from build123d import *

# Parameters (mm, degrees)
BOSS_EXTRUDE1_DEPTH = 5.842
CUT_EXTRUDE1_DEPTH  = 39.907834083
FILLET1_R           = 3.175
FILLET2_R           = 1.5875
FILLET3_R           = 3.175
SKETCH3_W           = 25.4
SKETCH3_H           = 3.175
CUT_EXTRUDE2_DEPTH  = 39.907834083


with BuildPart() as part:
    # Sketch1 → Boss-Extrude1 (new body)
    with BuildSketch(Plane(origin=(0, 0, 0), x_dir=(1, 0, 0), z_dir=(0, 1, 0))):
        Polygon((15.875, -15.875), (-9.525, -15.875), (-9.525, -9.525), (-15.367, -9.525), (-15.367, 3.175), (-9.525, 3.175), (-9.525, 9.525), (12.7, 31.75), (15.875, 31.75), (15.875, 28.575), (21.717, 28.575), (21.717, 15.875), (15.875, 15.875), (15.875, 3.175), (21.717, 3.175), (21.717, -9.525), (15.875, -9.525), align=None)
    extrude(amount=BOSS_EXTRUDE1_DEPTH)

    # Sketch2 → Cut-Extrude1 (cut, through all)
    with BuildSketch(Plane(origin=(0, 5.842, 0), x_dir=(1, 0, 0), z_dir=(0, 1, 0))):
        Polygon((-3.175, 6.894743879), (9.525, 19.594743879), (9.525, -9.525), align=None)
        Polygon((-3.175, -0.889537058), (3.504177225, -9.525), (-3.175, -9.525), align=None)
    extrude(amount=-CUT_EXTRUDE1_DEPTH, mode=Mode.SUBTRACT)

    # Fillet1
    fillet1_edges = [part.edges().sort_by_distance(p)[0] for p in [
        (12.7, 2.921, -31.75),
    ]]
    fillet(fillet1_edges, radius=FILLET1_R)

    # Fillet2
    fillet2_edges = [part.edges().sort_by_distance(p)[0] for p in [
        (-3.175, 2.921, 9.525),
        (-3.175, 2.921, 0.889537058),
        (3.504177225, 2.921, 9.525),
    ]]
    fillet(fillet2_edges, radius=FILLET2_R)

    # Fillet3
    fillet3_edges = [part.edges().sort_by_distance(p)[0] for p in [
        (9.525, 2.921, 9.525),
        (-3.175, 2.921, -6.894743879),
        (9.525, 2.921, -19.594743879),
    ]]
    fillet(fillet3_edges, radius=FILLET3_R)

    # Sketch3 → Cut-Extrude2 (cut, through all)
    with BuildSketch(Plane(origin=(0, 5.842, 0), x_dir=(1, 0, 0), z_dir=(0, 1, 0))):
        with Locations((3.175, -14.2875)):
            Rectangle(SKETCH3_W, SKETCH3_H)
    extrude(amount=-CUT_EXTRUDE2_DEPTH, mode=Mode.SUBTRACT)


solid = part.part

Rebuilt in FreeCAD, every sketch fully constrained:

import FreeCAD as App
import Part
import Sketcher

V = App.Vector
Q = App.Units.Quantity


def edges_at(feature, points):
    """Names of the edges that pass closest to the given points."""
    edges = feature.Shape.Edges
    near = lambda p: min(range(len(edges)), key=lambda i: edges[i].distToShape(Part.Vertex(*p))[0])
    return sorted({f"Edge{near(p) + 1}" for p in points})

doc = App.newDocument("Part")
params = doc.addObject("Spreadsheet::Sheet", "Params")
for row, (alias, value) in enumerate([
    ("sketch1_width", "1 in"),
    ("sketch1_height", "0.5 in"),
    ("sketch1_width2", "0.23 in"),
    ("pad1_length", "0.23 in"),
    ("fillet_radius", "0.125 in"),
    ("fillet2_radius", "0.0625 in"),
    ("fillet3_radius", "0.125 in"),
    ("sketch3_width", "1 in"),
    ("sketch3_height", "0.125 in"),
], start=1):
    params.set(f"A{row}", alias)
    params.set(f"B{row}", "=" + value)
    params.setAlias(f"B{row}", alias)

body = doc.addObject("PartDesign::Body", "Body")

sketch1 = body.newObject("Sketcher::SketchObject", "Sketch")
sketch1.AttachmentSupport = (doc.getObject("XZ_Plane"), [""])
sketch1.MapMode = "FlatFace"
sketch1.addGeometry(Part.LineSegment(V(-9.5, 15.9, 0), V(15.9, 15.9, 0)), False)
sketch1.addGeometry(Part.LineSegment(V(15.9, 15.9, 0), V(15.9, 9.5, 0)), False)
sketch1.addGeometry(Part.LineSegment(V(15.9, 9.5, 0), V(21.7, 9.5, 0)), False)
sketch1.addGeometry(Part.LineSegment(V(21.7, 9.5, 0), V(21.7, -3.2, 0)), False)
sketch1.addGeometry(Part.LineSegment(V(21.7, -3.2, 0), V(15.9, -3.2, 0)), False)
sketch1.addGeometry(Part.LineSegment(V(15.9, -3.2, 0), V(15.9, -15.9, 0)), False)
sketch1.addGeometry(Part.LineSegment(V(15.9, -15.9, 0), V(21.7, -15.9, 0)), False)
sketch1.addGeometry(Part.LineSegment(V(21.7, -15.9, 0), V(21.7, -28.6, 0)), False)
sketch1.addGeometry(Part.LineSegment(V(21.7, -28.6, 0), V(15.9, -28.6, 0)), False)
sketch1.addGeometry(Part.LineSegment(V(15.9, -28.6, 0), V(15.9, -31.8, 0)), False)
sketch1.addGeometry(Part.LineSegment(V(15.9, -31.8, 0), V(12.7, -31.8, 0)), False)
sketch1.addGeometry(Part.LineSegment(V(12.7, -31.8, 0), V(-9.5, -9.5, 0)), False)
sketch1.addGeometry(Part.LineSegment(V(-9.5, -9.5, 0), V(-9.5, -3.2, 0)), False)
sketch1.addGeometry(Part.LineSegment(V(-9.5, -3.2, 0), V(-15.4, -3.2, 0)), False)
sketch1.addGeometry(Part.LineSegment(V(-15.4, -3.2, 0), V(-15.4, 9.5, 0)), False)
sketch1.addGeometry(Part.LineSegment(V(-15.4, 9.5, 0), V(-9.5, 9.5, 0)), False)
sketch1.addGeometry(Part.LineSegment(V(-9.5, 9.5, 0), V(-9.5, 15.9, 0)), False)
sketch1.addConstraint(Sketcher.Constraint("Coincident", 0, 2, 1, 1))
sketch1.addConstraint(Sketcher.Constraint("Coincident", 1, 2, 2, 1))
sketch1.addConstraint(Sketcher.Constraint("Coincident", 2, 2, 3, 1))
sketch1.addConstraint(Sketcher.Constraint("Coincident", 3, 2, 4, 1))
sketch1.addConstraint(Sketcher.Constraint("Coincident", 4, 2, 5, 1))
sketch1.addConstraint(Sketcher.Constraint("Coincident", 5, 2, 6, 1))
sketch1.addConstraint(Sketcher.Constraint("Coincident", 6, 2, 7, 1))
sketch1.addConstraint(Sketcher.Constraint("Coincident", 7, 2, 8, 1))
sketch1.addConstraint(Sketcher.Constraint("Coincident", 8, 2, 9, 1))
sketch1.addConstraint(Sketcher.Constraint("Coincident", 9, 2, 10, 1))
sketch1.addConstraint(Sketcher.Constraint("Coincident", 10, 2, 11, 1))
sketch1.addConstraint(Sketcher.Constraint("Coincident", 11, 2, 12, 1))
sketch1.addConstraint(Sketcher.Constraint("Coincident", 12, 2, 13, 1))
sketch1.addConstraint(Sketcher.Constraint("Coincident", 13, 2, 14, 1))
sketch1.addConstraint(Sketcher.Constraint("Coincident", 14, 2, 15, 1))
sketch1.addConstraint(Sketcher.Constraint("Coincident", 15, 2, 16, 1))
sketch1.addConstraint(Sketcher.Constraint("Coincident", 16, 2, 0, 1))
sketch1.addConstraint(Sketcher.Constraint("Horizontal", 0))
sketch1.addConstraint(Sketcher.Constraint("Vertical", 1))
sketch1.addConstraint(Sketcher.Constraint("Horizontal", 2))
sketch1.addConstraint(Sketcher.Constraint("Vertical", 3))
sketch1.addConstraint(Sketcher.Constraint("Horizontal", 4))
sketch1.addConstraint(Sketcher.Constraint("Vertical", 5))
sketch1.addConstraint(Sketcher.Constraint("Horizontal", 6))
sketch1.addConstraint(Sketcher.Constraint("Vertical", 7))
sketch1.addConstraint(Sketcher.Constraint("Horizontal", 8))
sketch1.addConstraint(Sketcher.Constraint("Vertical", 9))
sketch1.addConstraint(Sketcher.Constraint("Horizontal", 10))
sketch1.addConstraint(Sketcher.Constraint("Vertical", 12))
sketch1.addConstraint(Sketcher.Constraint("Horizontal", 13))
sketch1.addConstraint(Sketcher.Constraint("Vertical", 14))
sketch1.addConstraint(Sketcher.Constraint("Horizontal", 15))
sketch1.addConstraint(Sketcher.Constraint("Vertical", 16))
sketch1.addConstraint(Sketcher.Constraint("Symmetric", 0, 2, 5, 2, -1))
sketch1.addConstraint(Sketcher.Constraint("Symmetric", 11, 2, 15, 2, -1))
sketch1.addConstraint(Sketcher.Constraint("Horizontal", 4, 2, 12, 2))
sketch1.addConstraint(Sketcher.Constraint("Horizontal", 2, 2, 14, 2))
sketch1.addConstraint(Sketcher.Constraint("Vertical", 3, 2, 6, 2))
sketch1.addConstraint(Sketcher.Constraint("Vertical", 5, 2, 8, 2))
sketch1.addConstraint(Sketcher.Constraint("Equal", 8, 13))
sketch1.addConstraint(Sketcher.Constraint("Equal", 3, 5))
sketch1.addConstraint(Sketcher.Constraint("Equal", 5, 7))
sketch1.addConstraint(Sketcher.Constraint("Equal", 10, 9))
sketch1.addConstraint(Sketcher.Constraint("Equal", 1, 12))
sketch1.addConstraint(Sketcher.Constraint("DistanceX", 0, 1, 0, 2, Q("1 in")))
sketch1.addConstraint(Sketcher.Constraint("DistanceY", 3, 2, 3, 1, Q("0.5 in")))
sketch1.addConstraint(Sketcher.Constraint("Angle", 11, Q("135 deg")))
sketch1.addConstraint(Sketcher.Constraint("DistanceX", 2, 1, 2, 2, Q("0.23 in")))
sketch1.addConstraint(Sketcher.Constraint("DistanceX", -1, 1, 10, 2, Q("0.5 in")))
sketch1.setExpression("Constraints[44]", "Params.sketch1_width")
sketch1.setExpression("Constraints[45]", "Params.sketch1_height")
sketch1.setExpression("Constraints[47]", "Params.sketch1_width2")
pad1 = body.newObject("PartDesign::Pad", "Pad")
pad1.Profile = sketch1
pad1.setExpression("Length", "Params.pad1_length")
pad1.Reversed = True

sketch2 = body.newObject("Sketcher::SketchObject", "Sketch001")
sketch2.AttachmentSupport = (doc.getObject("XZ_Plane"), [""])
sketch2.MapMode = "FlatFace"
sketch2.AttachmentOffset = App.Placement(V(0, 0, -0.23 * 25.4), App.Rotation())
sketch2.addGeometry(Part.LineSegment(V(10, -20, 0), V(-3, -7, 0)), False)
sketch2.addGeometry(Part.LineSegment(V(-3, -7, 0), V(10, 10, 0)), False)
sketch2.addGeometry(Part.LineSegment(V(10, 10, 0), V(10, -20, 0)), False)
sketch2.addGeometry(Part.LineSegment(V(4, 10, 0), V(-3, 1, 0)), False)
sketch2.addGeometry(Part.LineSegment(V(-3, 1, 0), V(-3, 10, 0)), False)
sketch2.addGeometry(Part.LineSegment(V(-3, 10, 0), V(4, 10, 0)), False)
sketch2.addConstraint(Sketcher.Constraint("Coincident", 0, 2, 1, 1))
sketch2.addConstraint(Sketcher.Constraint("Coincident", 1, 2, 2, 1))
sketch2.addConstraint(Sketcher.Constraint("Coincident", 2, 2, 0, 1))
sketch2.addConstraint(Sketcher.Constraint("Coincident", 3, 2, 4, 1))
sketch2.addConstraint(Sketcher.Constraint("Coincident", 4, 2, 5, 1))
sketch2.addConstraint(Sketcher.Constraint("Coincident", 5, 2, 3, 1))
sketch2.addConstraint(Sketcher.Constraint("Vertical", 2))
sketch2.addConstraint(Sketcher.Constraint("Vertical", 4))
sketch2.addConstraint(Sketcher.Constraint("Horizontal", 5))
sketch2.addConstraint(Sketcher.Constraint("Parallel", 1, 3))
sketch2.addConstraint(Sketcher.Constraint("Horizontal", 1, 2, 4, 2))
sketch2.addConstraint(Sketcher.Constraint("Vertical", 0, 2, 3, 2))
sketch2.addConstraint(Sketcher.Constraint("Angle", 0, Q("135 deg")))
sketch2.addConstraint(Sketcher.Constraint("DistanceX", 0, 2, 1, 2, Q("0.5 in")))
sketch2.addConstraint(Sketcher.Constraint("DistanceX", 0, 2, -1, 1, Q("0.125 in")))
sketch2.addConstraint(Sketcher.Constraint("DistanceY", -1, 1, 1, 2, Q("0.375 in")))
sketch2.addConstraint(Sketcher.Constraint("Distance", 3, 10.91708))
sketch2.addConstraint(Sketcher.Constraint("DistanceX", 5, 1, 5, 2, 6.679177))
pocket1 = body.newObject("PartDesign::Pocket", "Pocket")
pocket1.Profile = sketch2
pocket1.Type = "ThroughAll"
pocket1.Reversed = True
doc.recompute()

fillet = body.newObject("PartDesign::Fillet", "Fillet")
fillet.Base = (pocket1, edges_at(pocket1, [(12.7, 2.921, -31.75)]))
fillet.setExpression("Radius", "Params.fillet_radius")
doc.recompute()

fillet2 = body.newObject("PartDesign::Fillet", "Fillet001")
fillet2.Base = (fillet, edges_at(fillet, [(-3.175, 2.921, 9.525), (-3.175, 2.921, 0.89), (3.504, 2.921, 9.525)]))
fillet2.setExpression("Radius", "Params.fillet2_radius")
doc.recompute()

fillet3 = body.newObject("PartDesign::Fillet", "Fillet002")
fillet3.Base = (fillet2, edges_at(fillet2, [(9.525, 2.921, 9.525), (-3.175, 2.921, -6.895), (9.525, 2.921, -19.595)]))
fillet3.setExpression("Radius", "Params.fillet3_radius")

sketch3 = body.newObject("Sketcher::SketchObject", "Sketch002")
sketch3.AttachmentSupport = (doc.getObject("XZ_Plane"), [""])
sketch3.MapMode = "FlatFace"
sketch3.AttachmentOffset = App.Placement(V(0, 0, -0.23 * 25.4), App.Rotation())
sketch3.addGeometry(Part.LineSegment(V(-9.5, 12.7, 0), V(-9.5, 15.9, 0)), False)
sketch3.addGeometry(Part.LineSegment(V(-9.5, 15.9, 0), V(15.9, 15.9, 0)), False)
sketch3.addGeometry(Part.LineSegment(V(15.9, 15.9, 0), V(15.9, 12.7, 0)), False)
sketch3.addGeometry(Part.LineSegment(V(15.9, 12.7, 0), V(-9.5, 12.7, 0)), False)
sketch3.addConstraint(Sketcher.Constraint("Coincident", 0, 2, 1, 1))
sketch3.addConstraint(Sketcher.Constraint("Coincident", 1, 2, 2, 1))
sketch3.addConstraint(Sketcher.Constraint("Coincident", 2, 2, 3, 1))
sketch3.addConstraint(Sketcher.Constraint("Coincident", 3, 2, 0, 1))
sketch3.addConstraint(Sketcher.Constraint("Vertical", 0))
sketch3.addConstraint(Sketcher.Constraint("Horizontal", 1))
sketch3.addConstraint(Sketcher.Constraint("Vertical", 2))
sketch3.addConstraint(Sketcher.Constraint("Horizontal", 3))
sketch3.addConstraint(Sketcher.Constraint("DistanceX", 1, 1, 1, 2, Q("1 in")))
sketch3.addConstraint(Sketcher.Constraint("DistanceY", -1, 1, 2, 2, Q("0.5 in")))
sketch3.addConstraint(Sketcher.Constraint("DistanceY", 0, 1, 0, 2, Q("0.125 in")))
sketch3.addConstraint(Sketcher.Constraint("DistanceX", 0, 2, -1, 1, Q("0.375 in")))
sketch3.setExpression("Constraints[8]", "Params.sketch3_width")
sketch3.setExpression("Constraints[10]", "Params.sketch3_height")
pocket2 = body.newObject("PartDesign::Pocket", "Pocket001")
pocket2.Profile = sketch3
pocket2.Type = "ThroughAll"
pocket2.Reversed = True

doc.recompute()
